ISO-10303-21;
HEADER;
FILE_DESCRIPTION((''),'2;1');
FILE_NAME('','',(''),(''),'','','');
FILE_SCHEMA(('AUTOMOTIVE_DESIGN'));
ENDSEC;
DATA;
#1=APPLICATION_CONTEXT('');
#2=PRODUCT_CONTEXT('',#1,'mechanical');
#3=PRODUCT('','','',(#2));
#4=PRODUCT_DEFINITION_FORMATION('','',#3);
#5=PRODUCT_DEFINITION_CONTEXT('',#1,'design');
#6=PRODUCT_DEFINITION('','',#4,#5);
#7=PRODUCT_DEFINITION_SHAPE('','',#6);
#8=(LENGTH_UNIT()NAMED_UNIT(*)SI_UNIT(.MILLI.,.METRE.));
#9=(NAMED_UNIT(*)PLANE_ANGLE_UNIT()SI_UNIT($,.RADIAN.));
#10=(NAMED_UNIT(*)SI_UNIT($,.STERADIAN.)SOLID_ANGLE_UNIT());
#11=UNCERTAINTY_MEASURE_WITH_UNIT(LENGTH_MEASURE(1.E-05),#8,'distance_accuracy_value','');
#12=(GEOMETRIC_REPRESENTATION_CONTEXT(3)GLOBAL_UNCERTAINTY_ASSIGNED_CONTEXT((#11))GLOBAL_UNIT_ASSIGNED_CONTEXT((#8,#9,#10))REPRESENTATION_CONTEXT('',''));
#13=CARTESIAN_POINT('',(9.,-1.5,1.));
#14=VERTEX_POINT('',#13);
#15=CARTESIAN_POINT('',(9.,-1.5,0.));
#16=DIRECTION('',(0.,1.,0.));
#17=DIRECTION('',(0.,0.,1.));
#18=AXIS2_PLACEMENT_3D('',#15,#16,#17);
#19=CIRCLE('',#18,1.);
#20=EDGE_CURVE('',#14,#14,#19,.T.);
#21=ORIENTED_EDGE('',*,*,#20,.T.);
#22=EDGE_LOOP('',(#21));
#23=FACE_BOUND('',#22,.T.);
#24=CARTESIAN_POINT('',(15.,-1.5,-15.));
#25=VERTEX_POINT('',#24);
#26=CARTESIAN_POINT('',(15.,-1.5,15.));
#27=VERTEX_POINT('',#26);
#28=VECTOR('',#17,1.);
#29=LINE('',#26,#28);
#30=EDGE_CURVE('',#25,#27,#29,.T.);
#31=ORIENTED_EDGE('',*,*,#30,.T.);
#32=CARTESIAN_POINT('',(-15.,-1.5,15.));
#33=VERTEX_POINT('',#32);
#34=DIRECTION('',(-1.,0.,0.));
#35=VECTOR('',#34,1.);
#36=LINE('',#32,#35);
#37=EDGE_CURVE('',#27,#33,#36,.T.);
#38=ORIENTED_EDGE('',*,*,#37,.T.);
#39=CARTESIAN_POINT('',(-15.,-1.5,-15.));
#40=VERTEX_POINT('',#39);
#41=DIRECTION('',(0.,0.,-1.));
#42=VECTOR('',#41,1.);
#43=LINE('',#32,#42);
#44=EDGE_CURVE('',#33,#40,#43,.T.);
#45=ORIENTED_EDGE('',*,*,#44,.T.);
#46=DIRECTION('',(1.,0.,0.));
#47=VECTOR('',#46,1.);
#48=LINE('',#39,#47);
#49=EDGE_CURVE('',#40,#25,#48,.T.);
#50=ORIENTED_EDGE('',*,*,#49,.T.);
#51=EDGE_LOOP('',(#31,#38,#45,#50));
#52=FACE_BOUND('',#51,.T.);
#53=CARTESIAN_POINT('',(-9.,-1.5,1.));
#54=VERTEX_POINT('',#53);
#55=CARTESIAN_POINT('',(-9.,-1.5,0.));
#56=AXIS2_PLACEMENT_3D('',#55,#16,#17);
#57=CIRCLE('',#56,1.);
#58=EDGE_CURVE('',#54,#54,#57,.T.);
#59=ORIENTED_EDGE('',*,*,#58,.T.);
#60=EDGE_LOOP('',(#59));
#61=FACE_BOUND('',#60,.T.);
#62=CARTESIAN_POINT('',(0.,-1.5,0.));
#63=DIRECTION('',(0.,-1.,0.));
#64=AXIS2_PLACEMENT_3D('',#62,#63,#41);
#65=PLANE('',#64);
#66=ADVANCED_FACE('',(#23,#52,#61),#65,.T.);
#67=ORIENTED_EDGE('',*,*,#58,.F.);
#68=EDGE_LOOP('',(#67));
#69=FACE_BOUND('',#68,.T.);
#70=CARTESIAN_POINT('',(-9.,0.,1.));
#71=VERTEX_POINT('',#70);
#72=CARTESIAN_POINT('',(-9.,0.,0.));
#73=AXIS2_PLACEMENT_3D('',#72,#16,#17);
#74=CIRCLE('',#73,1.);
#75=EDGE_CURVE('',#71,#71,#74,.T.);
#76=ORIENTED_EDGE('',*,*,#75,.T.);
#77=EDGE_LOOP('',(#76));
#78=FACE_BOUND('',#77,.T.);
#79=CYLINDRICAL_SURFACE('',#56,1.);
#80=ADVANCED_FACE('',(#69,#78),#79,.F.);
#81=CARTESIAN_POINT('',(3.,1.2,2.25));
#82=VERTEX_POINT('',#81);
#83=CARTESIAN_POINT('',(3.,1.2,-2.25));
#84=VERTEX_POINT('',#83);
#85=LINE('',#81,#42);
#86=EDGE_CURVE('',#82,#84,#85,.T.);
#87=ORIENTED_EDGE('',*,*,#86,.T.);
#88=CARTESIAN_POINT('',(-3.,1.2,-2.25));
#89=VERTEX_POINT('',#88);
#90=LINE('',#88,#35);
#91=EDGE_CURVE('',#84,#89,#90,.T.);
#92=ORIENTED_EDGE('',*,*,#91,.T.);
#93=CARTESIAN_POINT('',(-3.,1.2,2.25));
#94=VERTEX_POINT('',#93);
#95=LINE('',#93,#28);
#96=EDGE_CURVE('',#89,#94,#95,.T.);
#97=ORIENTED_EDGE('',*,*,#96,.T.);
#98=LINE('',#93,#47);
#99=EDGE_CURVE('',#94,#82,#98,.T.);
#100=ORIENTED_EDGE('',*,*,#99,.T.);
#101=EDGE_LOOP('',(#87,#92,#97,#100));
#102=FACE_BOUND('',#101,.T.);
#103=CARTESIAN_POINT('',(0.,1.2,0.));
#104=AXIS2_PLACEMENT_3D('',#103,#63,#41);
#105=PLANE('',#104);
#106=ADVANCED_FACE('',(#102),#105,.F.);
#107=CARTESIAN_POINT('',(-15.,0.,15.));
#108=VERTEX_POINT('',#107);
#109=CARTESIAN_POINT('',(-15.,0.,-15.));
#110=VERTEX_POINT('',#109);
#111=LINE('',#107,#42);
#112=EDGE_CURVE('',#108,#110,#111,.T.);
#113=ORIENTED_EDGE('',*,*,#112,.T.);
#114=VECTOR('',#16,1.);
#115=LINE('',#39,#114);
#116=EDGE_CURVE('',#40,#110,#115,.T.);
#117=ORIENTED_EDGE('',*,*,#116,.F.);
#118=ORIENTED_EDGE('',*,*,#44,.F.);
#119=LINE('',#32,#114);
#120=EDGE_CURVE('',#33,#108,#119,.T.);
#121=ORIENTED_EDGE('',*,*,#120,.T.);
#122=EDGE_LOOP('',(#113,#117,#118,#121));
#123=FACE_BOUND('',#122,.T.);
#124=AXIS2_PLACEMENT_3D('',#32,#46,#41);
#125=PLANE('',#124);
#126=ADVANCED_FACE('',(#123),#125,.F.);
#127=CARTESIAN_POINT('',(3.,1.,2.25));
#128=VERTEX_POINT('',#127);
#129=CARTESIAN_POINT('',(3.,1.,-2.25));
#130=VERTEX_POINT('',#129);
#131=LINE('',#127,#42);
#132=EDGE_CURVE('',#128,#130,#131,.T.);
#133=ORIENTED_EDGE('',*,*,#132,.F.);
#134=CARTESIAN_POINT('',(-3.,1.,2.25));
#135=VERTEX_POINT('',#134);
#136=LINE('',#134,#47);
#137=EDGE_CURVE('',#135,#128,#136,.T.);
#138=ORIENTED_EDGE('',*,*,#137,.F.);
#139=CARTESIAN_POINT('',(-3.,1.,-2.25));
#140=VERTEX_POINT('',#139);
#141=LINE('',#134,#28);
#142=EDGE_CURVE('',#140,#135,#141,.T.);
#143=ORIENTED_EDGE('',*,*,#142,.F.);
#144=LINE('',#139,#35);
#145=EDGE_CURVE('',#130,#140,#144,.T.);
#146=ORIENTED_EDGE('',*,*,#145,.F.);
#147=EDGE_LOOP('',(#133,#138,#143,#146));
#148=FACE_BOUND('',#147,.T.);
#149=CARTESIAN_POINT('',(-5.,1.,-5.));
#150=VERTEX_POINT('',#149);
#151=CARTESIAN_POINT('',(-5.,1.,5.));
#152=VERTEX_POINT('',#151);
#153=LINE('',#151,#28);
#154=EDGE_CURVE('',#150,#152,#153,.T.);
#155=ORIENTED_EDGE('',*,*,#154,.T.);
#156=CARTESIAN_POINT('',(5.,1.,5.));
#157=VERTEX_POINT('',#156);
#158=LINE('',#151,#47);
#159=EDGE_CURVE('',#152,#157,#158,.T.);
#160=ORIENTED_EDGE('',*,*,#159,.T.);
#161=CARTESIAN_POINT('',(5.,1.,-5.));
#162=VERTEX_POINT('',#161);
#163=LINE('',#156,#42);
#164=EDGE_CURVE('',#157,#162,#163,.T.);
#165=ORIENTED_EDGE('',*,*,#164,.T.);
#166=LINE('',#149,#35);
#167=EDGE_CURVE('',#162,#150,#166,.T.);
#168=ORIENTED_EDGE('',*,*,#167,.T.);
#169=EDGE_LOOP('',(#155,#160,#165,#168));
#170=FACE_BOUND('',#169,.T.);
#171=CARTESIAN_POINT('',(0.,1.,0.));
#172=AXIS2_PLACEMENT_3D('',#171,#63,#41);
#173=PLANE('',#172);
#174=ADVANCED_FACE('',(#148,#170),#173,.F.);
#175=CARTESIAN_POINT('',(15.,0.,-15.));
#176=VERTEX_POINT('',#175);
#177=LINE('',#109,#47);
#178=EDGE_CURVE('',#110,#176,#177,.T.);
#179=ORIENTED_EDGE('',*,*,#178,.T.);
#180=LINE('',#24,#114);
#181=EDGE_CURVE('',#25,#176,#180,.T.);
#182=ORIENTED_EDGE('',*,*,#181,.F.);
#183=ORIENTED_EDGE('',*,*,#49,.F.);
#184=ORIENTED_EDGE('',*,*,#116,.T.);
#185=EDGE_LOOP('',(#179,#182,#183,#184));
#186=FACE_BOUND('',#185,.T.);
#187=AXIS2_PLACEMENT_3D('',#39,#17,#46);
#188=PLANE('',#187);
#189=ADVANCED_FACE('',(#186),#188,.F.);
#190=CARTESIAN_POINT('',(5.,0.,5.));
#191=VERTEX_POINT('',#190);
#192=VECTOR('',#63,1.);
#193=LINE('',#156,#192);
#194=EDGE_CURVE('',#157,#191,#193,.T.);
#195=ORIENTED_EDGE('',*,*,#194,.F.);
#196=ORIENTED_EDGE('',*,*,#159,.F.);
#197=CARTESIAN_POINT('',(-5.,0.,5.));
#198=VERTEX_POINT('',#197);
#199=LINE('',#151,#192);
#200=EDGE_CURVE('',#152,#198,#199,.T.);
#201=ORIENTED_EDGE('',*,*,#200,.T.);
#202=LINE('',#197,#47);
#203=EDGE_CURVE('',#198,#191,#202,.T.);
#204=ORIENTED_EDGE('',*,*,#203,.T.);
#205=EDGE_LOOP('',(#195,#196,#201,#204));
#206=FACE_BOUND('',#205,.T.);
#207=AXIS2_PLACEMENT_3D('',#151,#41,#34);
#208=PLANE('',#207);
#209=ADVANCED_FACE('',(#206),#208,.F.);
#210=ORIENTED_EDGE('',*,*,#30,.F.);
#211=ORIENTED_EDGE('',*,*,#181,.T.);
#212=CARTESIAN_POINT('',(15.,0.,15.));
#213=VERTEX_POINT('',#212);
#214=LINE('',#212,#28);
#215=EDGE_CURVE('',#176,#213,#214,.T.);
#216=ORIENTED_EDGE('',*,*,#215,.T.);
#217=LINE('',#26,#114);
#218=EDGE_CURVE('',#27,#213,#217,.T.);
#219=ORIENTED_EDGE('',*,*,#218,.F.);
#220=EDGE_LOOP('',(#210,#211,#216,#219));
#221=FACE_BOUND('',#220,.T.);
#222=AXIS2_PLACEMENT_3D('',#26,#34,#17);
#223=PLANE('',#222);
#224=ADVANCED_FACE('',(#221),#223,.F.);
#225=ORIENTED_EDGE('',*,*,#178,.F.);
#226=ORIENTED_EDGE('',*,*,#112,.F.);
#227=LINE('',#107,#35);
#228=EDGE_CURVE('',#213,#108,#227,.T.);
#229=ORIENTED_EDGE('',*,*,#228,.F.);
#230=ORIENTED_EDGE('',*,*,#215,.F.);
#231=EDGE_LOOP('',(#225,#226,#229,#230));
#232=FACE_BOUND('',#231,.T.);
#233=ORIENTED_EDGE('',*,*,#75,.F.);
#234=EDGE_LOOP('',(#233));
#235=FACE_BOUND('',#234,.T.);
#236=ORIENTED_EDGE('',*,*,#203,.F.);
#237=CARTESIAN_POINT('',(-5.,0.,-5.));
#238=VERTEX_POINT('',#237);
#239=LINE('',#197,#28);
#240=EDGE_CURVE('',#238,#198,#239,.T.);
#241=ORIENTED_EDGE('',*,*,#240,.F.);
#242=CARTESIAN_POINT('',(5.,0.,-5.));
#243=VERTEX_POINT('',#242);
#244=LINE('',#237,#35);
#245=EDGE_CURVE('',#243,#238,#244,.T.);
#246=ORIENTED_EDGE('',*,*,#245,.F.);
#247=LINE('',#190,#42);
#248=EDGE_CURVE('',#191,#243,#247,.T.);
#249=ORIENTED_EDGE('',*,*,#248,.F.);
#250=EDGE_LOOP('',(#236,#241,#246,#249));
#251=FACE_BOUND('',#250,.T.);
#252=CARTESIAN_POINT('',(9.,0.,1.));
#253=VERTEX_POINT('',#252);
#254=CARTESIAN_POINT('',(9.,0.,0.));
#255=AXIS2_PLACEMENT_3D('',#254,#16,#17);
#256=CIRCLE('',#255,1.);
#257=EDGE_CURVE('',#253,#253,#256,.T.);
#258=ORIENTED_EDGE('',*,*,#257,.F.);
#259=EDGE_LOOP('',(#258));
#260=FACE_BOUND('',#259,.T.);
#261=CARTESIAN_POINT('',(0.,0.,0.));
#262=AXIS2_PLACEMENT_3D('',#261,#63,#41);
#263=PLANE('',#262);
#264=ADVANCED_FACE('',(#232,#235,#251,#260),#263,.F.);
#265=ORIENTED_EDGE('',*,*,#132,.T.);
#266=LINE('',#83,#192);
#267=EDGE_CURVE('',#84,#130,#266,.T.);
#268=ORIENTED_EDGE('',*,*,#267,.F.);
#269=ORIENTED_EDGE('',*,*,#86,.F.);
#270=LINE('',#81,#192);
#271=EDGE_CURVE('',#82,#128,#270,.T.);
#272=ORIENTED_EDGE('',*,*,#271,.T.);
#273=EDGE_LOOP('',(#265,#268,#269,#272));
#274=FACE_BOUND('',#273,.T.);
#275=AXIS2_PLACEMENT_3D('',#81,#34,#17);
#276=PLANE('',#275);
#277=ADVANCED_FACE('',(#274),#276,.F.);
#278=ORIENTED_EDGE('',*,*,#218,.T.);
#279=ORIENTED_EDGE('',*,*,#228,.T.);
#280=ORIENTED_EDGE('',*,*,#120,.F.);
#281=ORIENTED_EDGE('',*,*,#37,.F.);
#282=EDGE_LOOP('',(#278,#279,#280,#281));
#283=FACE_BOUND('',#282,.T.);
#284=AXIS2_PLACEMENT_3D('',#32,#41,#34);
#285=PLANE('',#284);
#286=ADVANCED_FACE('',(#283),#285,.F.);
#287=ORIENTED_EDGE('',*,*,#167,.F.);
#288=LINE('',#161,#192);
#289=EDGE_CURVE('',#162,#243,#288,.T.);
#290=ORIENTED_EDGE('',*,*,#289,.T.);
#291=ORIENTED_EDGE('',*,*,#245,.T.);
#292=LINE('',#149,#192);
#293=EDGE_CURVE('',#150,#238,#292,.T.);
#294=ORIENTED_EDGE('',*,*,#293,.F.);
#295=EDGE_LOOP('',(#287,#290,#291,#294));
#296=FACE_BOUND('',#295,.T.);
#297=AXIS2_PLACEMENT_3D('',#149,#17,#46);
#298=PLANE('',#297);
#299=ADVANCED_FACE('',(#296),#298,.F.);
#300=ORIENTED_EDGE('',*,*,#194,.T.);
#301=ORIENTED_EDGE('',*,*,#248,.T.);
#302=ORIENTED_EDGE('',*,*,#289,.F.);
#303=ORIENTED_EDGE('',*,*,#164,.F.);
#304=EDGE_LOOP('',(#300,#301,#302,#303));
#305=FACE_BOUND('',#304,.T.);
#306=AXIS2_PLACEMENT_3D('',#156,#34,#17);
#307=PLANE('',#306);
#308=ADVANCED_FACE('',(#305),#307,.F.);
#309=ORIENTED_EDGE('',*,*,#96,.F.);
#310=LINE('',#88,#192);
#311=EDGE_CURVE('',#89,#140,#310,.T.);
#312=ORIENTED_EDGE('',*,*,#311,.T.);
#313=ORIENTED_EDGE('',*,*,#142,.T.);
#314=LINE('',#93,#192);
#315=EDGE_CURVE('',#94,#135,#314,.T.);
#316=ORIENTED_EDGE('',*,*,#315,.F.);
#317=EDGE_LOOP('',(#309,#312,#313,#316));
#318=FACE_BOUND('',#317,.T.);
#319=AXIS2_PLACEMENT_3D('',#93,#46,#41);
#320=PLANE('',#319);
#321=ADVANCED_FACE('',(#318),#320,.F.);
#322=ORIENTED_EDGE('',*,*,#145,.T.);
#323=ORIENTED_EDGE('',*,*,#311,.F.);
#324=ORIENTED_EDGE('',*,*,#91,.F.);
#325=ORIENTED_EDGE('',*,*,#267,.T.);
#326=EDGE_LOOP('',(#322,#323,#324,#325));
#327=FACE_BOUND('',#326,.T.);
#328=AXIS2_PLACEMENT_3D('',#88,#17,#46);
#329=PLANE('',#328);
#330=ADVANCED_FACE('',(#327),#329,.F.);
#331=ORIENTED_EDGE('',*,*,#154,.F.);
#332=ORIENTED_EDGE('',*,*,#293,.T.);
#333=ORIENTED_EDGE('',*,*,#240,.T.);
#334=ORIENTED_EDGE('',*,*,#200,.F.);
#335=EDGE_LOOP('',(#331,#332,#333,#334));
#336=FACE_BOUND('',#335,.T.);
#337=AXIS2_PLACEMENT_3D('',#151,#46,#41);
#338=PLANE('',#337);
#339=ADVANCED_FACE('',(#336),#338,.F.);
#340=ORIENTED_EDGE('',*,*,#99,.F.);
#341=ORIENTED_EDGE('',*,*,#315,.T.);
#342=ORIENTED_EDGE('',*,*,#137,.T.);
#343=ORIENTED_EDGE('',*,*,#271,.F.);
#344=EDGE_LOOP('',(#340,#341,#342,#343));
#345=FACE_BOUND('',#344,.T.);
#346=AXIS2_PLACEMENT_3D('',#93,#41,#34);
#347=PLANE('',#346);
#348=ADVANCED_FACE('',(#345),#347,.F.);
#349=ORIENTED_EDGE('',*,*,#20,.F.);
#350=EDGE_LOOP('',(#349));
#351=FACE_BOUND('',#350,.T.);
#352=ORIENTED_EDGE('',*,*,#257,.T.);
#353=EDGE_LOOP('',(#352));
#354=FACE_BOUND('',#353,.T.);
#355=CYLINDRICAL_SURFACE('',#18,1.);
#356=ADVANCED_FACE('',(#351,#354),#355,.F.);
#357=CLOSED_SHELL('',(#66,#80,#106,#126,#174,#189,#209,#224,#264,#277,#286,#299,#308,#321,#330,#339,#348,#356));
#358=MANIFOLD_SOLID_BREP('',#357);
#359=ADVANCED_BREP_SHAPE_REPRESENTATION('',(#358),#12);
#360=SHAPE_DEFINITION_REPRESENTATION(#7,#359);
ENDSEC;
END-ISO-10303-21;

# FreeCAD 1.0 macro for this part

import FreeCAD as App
import Part
import Sketcher


def add_polygon(sketch, points):
    """Adds a closed chain of lines whose ends are joined by coincident constraints."""
    first, n = sketch.GeometryCount, len(points)
    for a, b in zip(points, points[1:] + points[:1]):
        sketch.addGeometry(Part.LineSegment(App.Vector(*a, 0), App.Vector(*b, 0)), False)
    for i in range(n):
        sketch.addConstraint(Sketcher.Constraint("Coincident", first + i, 2, first + (i + 1) % n, 1))

doc = App.newDocument("Part")
body = doc.addObject("PartDesign::Body", "Body")

sketch1 = body.newObject("Sketcher::SketchObject", "Sketch")
sketch1.AttachmentSupport = (doc.getObject("XZ_Plane"), [""])
sketch1.MapMode = "FlatFace"
add_polygon(sketch1, [(-5, -5), (-5, 5), (5, 5), (5, -5)])
sketch1.addConstraint([
    Sketcher.Constraint("Vertical", 0),
    Sketcher.Constraint("Horizontal", 1),
    Sketcher.Constraint("Vertical", 2),
    Sketcher.Constraint("Horizontal", 3),
    Sketcher.Constraint("Symmetric", 0, 2, 2, 2, -1, 1),
    Sketcher.Constraint("Equal", 3, 0),
    Sketcher.Constraint("DistanceX", 1, 1, 1, 2, 10.0),
])
pad1 = body.newObject("PartDesign::Pad", "Pad")
pad1.Profile = sketch1
pad1.Length = 1
pad1.Reversed = True

sketch2 = body.newObject("Sketcher::SketchObject", "Sketch001")
sketch2.AttachmentSupport = (doc.getObject("XZ_Plane"), [""])
sketch2.MapMode = "FlatFace"
sketch2.AttachmentOffset = App.Placement(App.Vector(0, 0, -1), App.Rotation())
add_polygon(sketch2, [(-3, -2.2), (-3, 2.2), (3, 2.2), (3, -2.2)])
sketch2.addConstraint([
    Sketcher.Constraint("Vertical", 0),
    Sketcher.Constraint("Horizontal", 1),
    Sketcher.Constraint("Vertical", 2),
    Sketcher.Constraint("Horizontal", 3),
    Sketcher.Constraint("Symmetric", 0, 2, 2, 2, -1, 1),
    Sketcher.Constraint("DistanceX", 1, 1, 1, 2, 6.0),
    Sketcher.Constraint("DistanceY", 0, 1, 0, 2, 4.5),
])
pad2 = body.newObject("PartDesign::Pad", "Pad001")
pad2.Profile = sketch2
pad2.Length = 0.2
pad2.Reversed = True

sketch3 = body.newObject("Sketcher::SketchObject", "Sketch002")
sketch3.AttachmentSupport = (doc.getObject("XZ_Plane"), [""])
sketch3.MapMode = "FlatFace"
add_polygon(sketch3, [(-15, 15), (-15, -15), (15, -15), (15, 15)])
sketch3.addConstraint([
    Sketcher.Constraint("Vertical", 0),
    Sketcher.Constraint("Horizontal", 1),
    Sketcher.Constraint("Vertical", 2),
    Sketcher.Constraint("Horizontal", 3),
    Sketcher.Constraint("Symmetric", 0, 2, 2, 2, -1, 1),
    Sketcher.Constraint("Equal", 3, 0),
    Sketcher.Constraint("DistanceX", 1, 1, 1, 2, 30.0),
])
pad3 = body.newObject("PartDesign::Pad", "Pad002")
pad3.Profile = sketch3
pad3.Length = 1.5

sketch4 = body.newObject("Sketcher::SketchObject", "Sketch003")
sketch4.AttachmentSupport = (doc.getObject("XZ_Plane"), [""])
sketch4.MapMode = "FlatFace"
sketch4.addGeometry([
    Part.Circle(App.Vector(9, 0, 0), App.Vector(0, 0, 1), 1),
    Part.Circle(App.Vector(-9, 0, 0), App.Vector(0, 0, 1), 1),
], False)
sketch4.addConstraint([
    Sketcher.Constraint("Equal", 0, 1),
    Sketcher.Constraint("Symmetric", 0, 3, 1, 3, -1, 1),
    Sketcher.Constraint("PointOnObject", 0, 3, -1),
    Sketcher.Constraint("Diameter", 0, 2.0),
    Sketcher.Constraint("DistanceX", -1, 1, 0, 3, 9.0),
])
pocket1 = body.newObject("PartDesign::Pocket", "Pocket")
pocket1.Profile = sketch4
pocket1.Type = "ThroughAll"
pocket1.Reversed = True

doc.recompute()
